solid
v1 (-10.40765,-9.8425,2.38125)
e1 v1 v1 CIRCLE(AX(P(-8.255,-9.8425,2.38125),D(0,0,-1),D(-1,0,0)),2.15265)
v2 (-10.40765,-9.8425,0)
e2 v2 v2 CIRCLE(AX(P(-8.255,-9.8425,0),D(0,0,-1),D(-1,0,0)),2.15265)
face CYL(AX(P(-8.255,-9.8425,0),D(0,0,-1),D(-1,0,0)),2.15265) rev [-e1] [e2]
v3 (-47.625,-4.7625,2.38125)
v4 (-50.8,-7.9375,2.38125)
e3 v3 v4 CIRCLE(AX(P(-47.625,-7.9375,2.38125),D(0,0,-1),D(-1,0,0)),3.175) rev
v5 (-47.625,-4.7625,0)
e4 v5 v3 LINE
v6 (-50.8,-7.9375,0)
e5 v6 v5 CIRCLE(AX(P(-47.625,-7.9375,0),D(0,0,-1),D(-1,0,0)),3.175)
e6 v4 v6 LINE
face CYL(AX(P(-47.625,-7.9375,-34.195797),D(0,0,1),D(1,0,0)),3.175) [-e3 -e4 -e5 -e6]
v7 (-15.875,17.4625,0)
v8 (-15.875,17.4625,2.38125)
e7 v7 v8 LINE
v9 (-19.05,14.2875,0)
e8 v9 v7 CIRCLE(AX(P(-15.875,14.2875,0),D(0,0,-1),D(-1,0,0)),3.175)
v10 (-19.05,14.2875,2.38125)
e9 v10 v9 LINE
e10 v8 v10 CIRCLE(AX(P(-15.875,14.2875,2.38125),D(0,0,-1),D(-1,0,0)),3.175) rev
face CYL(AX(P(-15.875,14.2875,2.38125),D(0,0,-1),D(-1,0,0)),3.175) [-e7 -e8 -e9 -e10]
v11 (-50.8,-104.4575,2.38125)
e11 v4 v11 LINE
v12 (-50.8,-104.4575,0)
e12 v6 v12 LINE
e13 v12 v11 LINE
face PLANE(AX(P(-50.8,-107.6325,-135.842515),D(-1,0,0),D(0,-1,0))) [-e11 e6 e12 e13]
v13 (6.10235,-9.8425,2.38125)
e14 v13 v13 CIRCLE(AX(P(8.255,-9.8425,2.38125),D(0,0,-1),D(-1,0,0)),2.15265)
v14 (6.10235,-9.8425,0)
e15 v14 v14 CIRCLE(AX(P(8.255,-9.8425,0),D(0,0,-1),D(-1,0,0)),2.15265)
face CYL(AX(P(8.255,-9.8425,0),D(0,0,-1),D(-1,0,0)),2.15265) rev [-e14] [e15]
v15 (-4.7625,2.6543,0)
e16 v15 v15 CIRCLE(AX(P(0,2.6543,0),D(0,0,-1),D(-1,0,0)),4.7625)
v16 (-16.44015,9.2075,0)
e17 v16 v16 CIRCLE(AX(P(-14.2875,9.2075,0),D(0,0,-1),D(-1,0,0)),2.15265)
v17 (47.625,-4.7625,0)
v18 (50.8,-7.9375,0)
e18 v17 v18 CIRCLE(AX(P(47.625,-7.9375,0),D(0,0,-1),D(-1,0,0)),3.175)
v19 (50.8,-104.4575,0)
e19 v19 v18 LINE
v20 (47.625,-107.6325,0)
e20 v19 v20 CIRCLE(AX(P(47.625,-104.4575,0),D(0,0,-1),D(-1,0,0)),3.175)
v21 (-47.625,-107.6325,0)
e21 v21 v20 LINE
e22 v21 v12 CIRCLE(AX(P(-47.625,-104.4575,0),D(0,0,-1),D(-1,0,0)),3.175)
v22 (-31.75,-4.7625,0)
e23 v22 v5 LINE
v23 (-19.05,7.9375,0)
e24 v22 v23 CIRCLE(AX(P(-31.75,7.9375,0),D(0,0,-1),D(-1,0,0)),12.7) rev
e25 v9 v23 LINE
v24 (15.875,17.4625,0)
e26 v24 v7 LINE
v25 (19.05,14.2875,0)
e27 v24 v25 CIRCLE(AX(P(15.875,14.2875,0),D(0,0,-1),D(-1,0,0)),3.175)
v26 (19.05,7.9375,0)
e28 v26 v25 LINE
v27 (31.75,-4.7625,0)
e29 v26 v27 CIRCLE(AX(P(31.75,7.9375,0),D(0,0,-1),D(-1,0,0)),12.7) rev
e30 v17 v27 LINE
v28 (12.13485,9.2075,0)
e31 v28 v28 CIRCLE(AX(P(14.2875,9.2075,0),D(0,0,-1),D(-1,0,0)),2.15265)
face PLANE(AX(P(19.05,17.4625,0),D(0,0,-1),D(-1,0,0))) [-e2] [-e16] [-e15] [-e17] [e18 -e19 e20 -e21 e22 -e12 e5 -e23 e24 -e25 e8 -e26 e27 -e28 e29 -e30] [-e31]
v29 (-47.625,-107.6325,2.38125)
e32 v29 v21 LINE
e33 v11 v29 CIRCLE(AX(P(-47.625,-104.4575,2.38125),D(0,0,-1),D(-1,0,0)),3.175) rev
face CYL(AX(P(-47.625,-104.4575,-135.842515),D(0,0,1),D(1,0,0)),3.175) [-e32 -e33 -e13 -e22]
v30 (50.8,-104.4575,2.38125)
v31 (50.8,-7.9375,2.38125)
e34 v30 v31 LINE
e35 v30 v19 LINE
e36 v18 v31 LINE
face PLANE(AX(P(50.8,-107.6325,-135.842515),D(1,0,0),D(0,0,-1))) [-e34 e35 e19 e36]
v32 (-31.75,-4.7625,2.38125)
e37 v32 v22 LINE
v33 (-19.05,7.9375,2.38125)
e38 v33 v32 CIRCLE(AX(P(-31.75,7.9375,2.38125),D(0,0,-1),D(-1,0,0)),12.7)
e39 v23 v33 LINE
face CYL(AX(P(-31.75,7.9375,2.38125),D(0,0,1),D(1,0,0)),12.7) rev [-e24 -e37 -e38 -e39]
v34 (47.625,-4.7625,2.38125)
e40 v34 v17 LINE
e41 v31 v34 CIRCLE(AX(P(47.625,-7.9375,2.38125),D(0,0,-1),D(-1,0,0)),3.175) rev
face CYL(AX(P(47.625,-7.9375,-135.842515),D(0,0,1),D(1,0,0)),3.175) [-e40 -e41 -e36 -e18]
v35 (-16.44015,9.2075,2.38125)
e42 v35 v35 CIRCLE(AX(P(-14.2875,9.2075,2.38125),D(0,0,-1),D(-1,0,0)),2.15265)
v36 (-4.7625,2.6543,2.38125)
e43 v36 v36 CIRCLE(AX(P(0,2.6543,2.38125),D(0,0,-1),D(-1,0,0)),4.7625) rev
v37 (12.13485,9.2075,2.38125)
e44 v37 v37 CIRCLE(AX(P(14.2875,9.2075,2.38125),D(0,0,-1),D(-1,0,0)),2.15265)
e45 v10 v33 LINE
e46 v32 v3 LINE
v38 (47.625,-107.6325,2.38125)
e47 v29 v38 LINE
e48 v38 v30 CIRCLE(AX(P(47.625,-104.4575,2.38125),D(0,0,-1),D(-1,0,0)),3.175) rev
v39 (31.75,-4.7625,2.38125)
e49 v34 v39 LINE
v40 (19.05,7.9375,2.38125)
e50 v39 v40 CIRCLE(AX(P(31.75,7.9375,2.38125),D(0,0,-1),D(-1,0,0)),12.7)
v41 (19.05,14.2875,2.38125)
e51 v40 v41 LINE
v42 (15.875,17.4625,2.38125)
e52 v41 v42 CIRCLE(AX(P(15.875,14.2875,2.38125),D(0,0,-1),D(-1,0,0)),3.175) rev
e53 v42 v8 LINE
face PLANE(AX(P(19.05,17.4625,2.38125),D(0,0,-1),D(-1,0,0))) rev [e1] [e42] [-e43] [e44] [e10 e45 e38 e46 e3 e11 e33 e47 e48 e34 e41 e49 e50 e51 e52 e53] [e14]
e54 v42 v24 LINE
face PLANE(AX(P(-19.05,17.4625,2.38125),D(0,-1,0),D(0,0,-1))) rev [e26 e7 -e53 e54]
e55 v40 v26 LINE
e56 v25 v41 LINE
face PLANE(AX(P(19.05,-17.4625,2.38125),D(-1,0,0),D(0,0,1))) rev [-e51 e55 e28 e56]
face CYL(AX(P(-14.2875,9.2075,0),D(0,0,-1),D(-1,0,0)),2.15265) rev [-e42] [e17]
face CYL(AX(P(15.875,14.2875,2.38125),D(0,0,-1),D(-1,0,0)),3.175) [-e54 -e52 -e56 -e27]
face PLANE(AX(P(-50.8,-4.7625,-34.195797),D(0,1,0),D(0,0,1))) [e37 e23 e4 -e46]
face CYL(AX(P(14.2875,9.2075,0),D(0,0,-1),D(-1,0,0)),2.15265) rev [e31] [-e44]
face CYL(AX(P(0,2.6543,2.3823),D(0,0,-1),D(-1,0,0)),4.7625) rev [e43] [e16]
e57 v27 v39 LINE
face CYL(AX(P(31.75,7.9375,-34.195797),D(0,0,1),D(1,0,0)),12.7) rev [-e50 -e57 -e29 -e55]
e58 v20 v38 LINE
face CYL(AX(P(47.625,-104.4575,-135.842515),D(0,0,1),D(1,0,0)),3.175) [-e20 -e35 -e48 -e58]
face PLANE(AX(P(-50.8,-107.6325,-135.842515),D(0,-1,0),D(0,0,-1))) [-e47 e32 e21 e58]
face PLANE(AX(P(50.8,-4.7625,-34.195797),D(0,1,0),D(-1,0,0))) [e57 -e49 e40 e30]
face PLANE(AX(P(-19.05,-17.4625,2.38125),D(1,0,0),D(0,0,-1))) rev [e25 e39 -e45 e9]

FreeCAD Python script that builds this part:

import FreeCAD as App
import Part
import Sketcher
from FreeCAD import Vector
Q = App.Units.Quantity


def edges_at(feature, points):
    """Names of the edges that pass closest to the given points."""
    edges = feature.Shape.Edges
    near = lambda p: min(range(len(edges)), key=lambda i: edges[i].distToShape(Part.Vertex(*p))[0])
    return sorted({f"Edge{near(p) + 1}" for p in points})


def add_polygon(sketch, points):
    """Adds a closed chain of lines whose ends are joined by coincident constraints."""
    first, n = sketch.GeometryCount, len(points)
    for a, b in zip(points, points[1:] + points[:1]):
        sketch.addGeometry(Part.LineSegment(App.Vector(*a, 0), App.Vector(*b, 0)), False)
    for i in range(n):
        sketch.addConstraint(Sketcher.Constraint("Coincident", first + i, 2, first + (i + 1) % n, 1))

doc = App.newDocument("Part")
body = doc.addObject("PartDesign::Body", "Body")

# Sketch on XY plane
sketch1 = body.newObject("Sketcher::SketchObject", "Sketch")
sketch1.AttachmentSupport = (doc.getObject("XY_Plane"), [""])
sketch1.MapMode = "FlatFace"
add_polygon(sketch1, [(-19, 17), (-19, -17), (19, -17), (19, 17)])  # lines 0-3
sketch1.addConstraint([
    Sketcher.Constraint("Vertical", 0),
    Sketcher.Constraint("Horizontal", 1),
    Sketcher.Constraint("Vertical", 2),
    Sketcher.Constraint("Horizontal", 3),
    Sketcher.Constraint("Symmetric", 0, 2, 2, 2, -1, 1),
    Sketcher.Constraint("DistanceX", 1, 1, 1, 2, Q("1.5 in")),
    Sketcher.Constraint("DistanceY", 0, 2, 0, 1, Q("1.375 in")),
])
pad1 = body.newObject("PartDesign::Pad", "Pad")
pad1.Profile = sketch1
pad1.Length = Q("0.09375 in")

# Sketch on XY plane
sketch2 = body.newObject("Sketcher::SketchObject", "Sketch001")
sketch2.AttachmentSupport = (doc.getObject("XY_Plane"), [""])
sketch2.MapMode = "FlatFace"
sketch2.AttachmentOffset = App.Placement(Vector(0, 0, 0.09375 * 25.4), App.Rotation())
add_polygon(sketch2, [(-51, -17), (-51, -108), (51, -108), (51, -17)])  # lines 0-3
sketch2.addConstraint([
    Sketcher.Constraint("Vertical", 0),
    Sketcher.Constraint("Horizontal", 1),
    Sketcher.Constraint("Vertical", 2),
    Sketcher.Constraint("Horizontal", 3),
    Sketcher.Constraint("DistanceX", 1, 1, 1, 2, Q("4 in")),
    Sketcher.Constraint("DistanceX", 0, 2, -1, 1, Q("2 in")),
    Sketcher.Constraint("DistanceY", 0, 2, 0, 1, Q("3.55 in")),
    Sketcher.Constraint("DistanceY", 2, 2, -1, 1, Q("0.6875 in")),
])
pad2 = body.newObject("PartDesign::Pad", "Pad001")
pad2.Profile = sketch2
pad2.Length = Q("0.09375 in")
pad2.Reversed = True

# Sketch on XY plane
sketch3 = body.newObject("Sketcher::SketchObject", "Sketch002")
sketch3.AttachmentSupport = (doc.getObject("XY_Plane"), [""])
sketch3.MapMode = "FlatFace"
sketch3.addGeometry(Part.Circle(Vector(0, 2.7, 0), Vector(0, 0, 1), 4.8), False)
sketch3.addConstraint([
    Sketcher.Constraint("PointOnObject", 0, 3, -2),
    Sketcher.Constraint("Diameter", 0, Q("0.375 in")),
    Sketcher.Constraint("DistanceY", -1, 1, 0, 3, Q("0.1045 in")),
])
pocket1 = body.newObject("PartDesign::Pocket", "Pocket")
pocket1.Profile = sketch3
pocket1.Type = "UpToFirst"
pocket1.Reversed = True

# Sketch on XY plane
sketch4 = body.newObject("Sketcher::SketchObject", "Sketch003")
sketch4.AttachmentSupport = (doc.getObject("XY_Plane"), [""])
sketch4.MapMode = "FlatFace"
sketch4.addGeometry([
    Part.Circle(Vector(8.3, -9.8, 0), Vector(0, 0, 1), 2.2),
    Part.Circle(Vector(-8.3, -9.8, 0), Vector(0, 0, 1), 2.2),
    Part.Circle(Vector(14.3, 9.2, 0), Vector(0, 0, 1), 2.2),
    Part.Circle(Vector(-14.3, 9.2, 0), Vector(0, 0, 1), 2.2),
], False)
sketch4.addConstraint([
    Sketcher.Constraint("Equal", 0, 1),
    Sketcher.Constraint("Equal", 1, 2),
    Sketcher.Constraint("Equal", 2, 3),
    Sketcher.Constraint("Symmetric", 0, 3, 1, 3, -2),
    Sketcher.Constraint("Symmetric", 2, 3, 3, 3, -2),
    Sketcher.Constraint("Diameter", 0, Q("0.1695 in")),
    Sketcher.Constraint("DistanceX", 1, 3, 0, 3, Q("0.65 in")),
    Sketcher.Constraint("DistanceY", 0, 3, 2, 3, Q("0.75 in")),
    Sketcher.Constraint("DistanceX", -1, 1, 2, 3, Q("0.5625 in")),
    Sketcher.Constraint("DistanceY", 0, 3, -1, 1, Q("0.3875 in")),
])
doc.recompute()
hole = body.newObject("PartDesign::Hole", "Hole")
hole.Profile = sketch4
hole.ThreadType = "None"
hole.Diameter = Q("0.1695 in")
hole.DepthType = "Dimension"
hole.Depth = Q("0.5 in")
hole.DrillPoint = "Angled"
hole.DrillPointAngle = 118
hole.Reversed = True

# Sketch on XY plane
sketch5 = body.newObject("Sketcher::SketchObject", "Sketch004")
sketch5.AttachmentSupport = (doc.getObject("XY_Plane"), [""])
sketch5.MapMode = "FlatFace"
sketch5.AttachmentOffset = App.Placement(Vector(0, 0, 0.09375 * 25.4), App.Rotation())
add_polygon(sketch5, [(-51, -5), (-51, -17), (-19, -17), (-19, -5)])  # lines 0-3
add_polygon(sketch5, [(19, -5), (19, -17), (51, -17), (51, -5)])  # lines 4-7
sketch5.addConstraint([
    Sketcher.Constraint("Vertical", 0),
    Sketcher.Constraint("Horizontal", 1),
    Sketcher.Constraint("Vertical", 2),
    Sketcher.Constraint("Horizontal", 3),
    Sketcher.Constraint("Vertical", 4),
    Sketcher.Constraint("Horizontal", 5),
    Sketcher.Constraint("Vertical", 6),
    Sketcher.Constraint("Horizontal", 7),
    Sketcher.Constraint("Symmetric", 1, 2, 4, 2, -2),
    Sketcher.Constraint("Symmetric", 3, 2, 6, 2, -2),
    Sketcher.Constraint("DistanceY", 0, 2, 0, 1, Q("0.5 in")),
    Sketcher.Constraint("DistanceX", 0, 2, -1, 1, Q("2 in")),
    Sketcher.Constraint("DistanceX", 1, 1, 1, 2, Q("1.25 in")),
    Sketcher.Constraint("DistanceY", 0, 2, -1, 1, Q("0.6875 in")),
])
pad3 = body.newObject("PartDesign::Pad", "Pad002")
pad3.Profile = sketch5
pad3.Length = Q("0.09375 in")
pad3.Reversed = True
doc.recompute()

fillet = body.newObject("PartDesign::Fillet", "Fillet")
fillet.Base = (pad3, edges_at(pad3, [
    (-50.8, -107.632, 1.191),
    (50.8, -107.632, 1.191),
    (-19.05, 17.462, 1.191),
    (19.05, 17.462, 1.191),
    (50.8, -4.763, 1.191),
    (-50.8, -4.763, 1.191),
]))
fillet.Radius = Q("0.125 in")
doc.recompute()

fillet2 = body.newObject("PartDesign::Fillet", "Fillet001")
fillet2.Base = (fillet, edges_at(fillet, [(19.05, -4.763, 1.191), (-19.05, -4.763, 1.191)]))
fillet2.Radius = Q("0.5 in")

doc.recompute()
